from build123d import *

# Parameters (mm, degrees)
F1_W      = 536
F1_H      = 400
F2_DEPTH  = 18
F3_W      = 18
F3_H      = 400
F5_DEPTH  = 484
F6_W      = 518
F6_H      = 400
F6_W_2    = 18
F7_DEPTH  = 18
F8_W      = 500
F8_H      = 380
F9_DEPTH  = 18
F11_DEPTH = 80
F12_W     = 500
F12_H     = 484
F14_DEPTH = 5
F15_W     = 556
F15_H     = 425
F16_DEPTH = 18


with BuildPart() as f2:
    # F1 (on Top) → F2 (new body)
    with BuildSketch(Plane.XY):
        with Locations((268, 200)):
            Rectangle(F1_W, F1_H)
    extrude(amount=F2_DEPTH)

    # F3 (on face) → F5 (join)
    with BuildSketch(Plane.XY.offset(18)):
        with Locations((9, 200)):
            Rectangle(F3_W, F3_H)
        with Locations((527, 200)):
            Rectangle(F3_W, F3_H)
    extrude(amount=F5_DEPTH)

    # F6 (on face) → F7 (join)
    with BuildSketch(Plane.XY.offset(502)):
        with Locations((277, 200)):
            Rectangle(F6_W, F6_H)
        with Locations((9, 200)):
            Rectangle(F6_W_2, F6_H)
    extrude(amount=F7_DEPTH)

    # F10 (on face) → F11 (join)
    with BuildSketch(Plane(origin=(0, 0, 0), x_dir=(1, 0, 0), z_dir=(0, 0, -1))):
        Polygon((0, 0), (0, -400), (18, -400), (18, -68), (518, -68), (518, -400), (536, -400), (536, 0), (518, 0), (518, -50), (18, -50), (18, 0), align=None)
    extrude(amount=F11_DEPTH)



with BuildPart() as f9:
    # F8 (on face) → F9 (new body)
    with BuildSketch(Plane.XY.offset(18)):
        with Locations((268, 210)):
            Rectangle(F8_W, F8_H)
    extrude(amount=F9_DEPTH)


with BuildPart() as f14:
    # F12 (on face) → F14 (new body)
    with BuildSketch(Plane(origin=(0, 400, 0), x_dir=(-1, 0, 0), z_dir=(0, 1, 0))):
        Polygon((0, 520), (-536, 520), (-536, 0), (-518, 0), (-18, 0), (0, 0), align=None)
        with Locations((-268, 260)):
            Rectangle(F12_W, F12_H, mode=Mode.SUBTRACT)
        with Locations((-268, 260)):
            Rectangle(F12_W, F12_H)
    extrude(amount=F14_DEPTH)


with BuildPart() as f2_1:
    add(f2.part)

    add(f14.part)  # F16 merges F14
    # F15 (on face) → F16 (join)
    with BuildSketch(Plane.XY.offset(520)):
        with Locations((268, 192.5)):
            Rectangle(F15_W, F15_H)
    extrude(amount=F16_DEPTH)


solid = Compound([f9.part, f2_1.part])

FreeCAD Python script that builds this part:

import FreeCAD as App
import Part
import Sketcher


def add_polygon(sketch, points):
    """Adds a closed chain of lines whose ends are joined by coincident constraints."""
    first, n = sketch.GeometryCount, len(points)
    for a, b in zip(points, points[1:] + points[:1]):
        sketch.addGeometry(Part.LineSegment(App.Vector(*a, 0), App.Vector(*b, 0)), False)
    for i in range(n):
        sketch.addConstraint(Sketcher.Constraint("Coincident", first + i, 2, first + (i + 1) % n, 1))

doc = App.newDocument("Part")
body = doc.addObject("PartDesign::Body", "Body")

sketch1 = doc.addObject("Sketcher::SketchObject", "Sketch")
body.addObject(sketch1)
sketch1.AttachmentSupport = (doc.XY_Plane, [""])
sketch1.MapMode = "FlatFace"
add_polygon(sketch1, [(0, 400), (0, 0), (536, 0), (536, 400)])
sketch1.addConstraint(Sketcher.Constraint("Vertical", 0))
sketch1.addConstraint(Sketcher.Constraint("Horizontal", 1))
sketch1.addConstraint(Sketcher.Constraint("Vertical", 2))
sketch1.addConstraint(Sketcher.Constraint("Horizontal", 3))
sketch1.addConstraint(Sketcher.Constraint("Coincident", 0, 2, -1, 1))
sketch1.addConstraint(Sketcher.Constraint("DistanceX", 1, 1, 1, 2, 536.0))
sketch1.addConstraint(Sketcher.Constraint("DistanceY", 0, 2, 0, 1, 400.0))
pad1 = doc.addObject("PartDesign::Pad", "Pad")
body.addObject(pad1)
pad1.Profile = sketch1
pad1.Length = 18

sketch2 = doc.addObject("Sketcher::SketchObject", "Sketch001")
body.addObject(sketch2)
sketch2.AttachmentSupport = (doc.XY_Plane, [""])
sketch2.MapMode = "FlatFace"
sketch2.AttachmentOffset = App.Placement(App.Vector(0, 0, 18), App.Rotation())
add_polygon(sketch2, [(0, 400), (0, 0), (18, 0), (18, 400)])
add_polygon(sketch2, [(518, 400), (518, 0), (536, 0), (536, 400)])
sketch2.addConstraint(Sketcher.Constraint("Vertical", 0))
sketch2.addConstraint(Sketcher.Constraint("Horizontal", 1))
sketch2.addConstraint(Sketcher.Constraint("Vertical", 2))
sketch2.addConstraint(Sketcher.Constraint("Horizontal", 3))
sketch2.addConstraint(Sketcher.Constraint("Vertical", 4))
sketch2.addConstraint(Sketcher.Constraint("Horizontal", 5))
sketch2.addConstraint(Sketcher.Constraint("Vertical", 6))
sketch2.addConstraint(Sketcher.Constraint("Horizontal", 7))
sketch2.addConstraint(Sketcher.Constraint("Coincident", 0, 2, -1, 1))
sketch2.addConstraint(Sketcher.Constraint("PointOnObject", 4, 2, -1))
sketch2.addConstraint(Sketcher.Constraint("Horizontal", 3, 2, 6, 2))
sketch2.addConstraint(Sketcher.Constraint("Equal", 3, 5))
sketch2.addConstraint(Sketcher.Constraint("DistanceX", 1, 1, 1, 2, 18.0))
sketch2.addConstraint(Sketcher.Constraint("DistanceY", 0, 2, 0, 1, 400.0))
sketch2.addConstraint(Sketcher.Constraint("DistanceX", -1, 1, 4, 2, 518.0))
pad2 = doc.addObject("PartDesign::Pad", "Pad001")
body.addObject(pad2)
pad2.Profile = sketch2
pad2.Length = 484

sketch3 = doc.addObject("Sketcher::SketchObject", "Sketch002")
body.addObject(sketch3)
sketch3.AttachmentSupport = (doc.XY_Plane, [""])
sketch3.MapMode = "FlatFace"
sketch3.AttachmentOffset = App.Placement(App.Vector(0, 0, 502), App.Rotation())
add_polygon(sketch3, [(536, 0), (536, 400), (0, 400), (0, 0)])
sketch3.addConstraint(Sketcher.Constraint("Vertical", 0))
sketch3.addConstraint(Sketcher.Constraint("Horizontal", 1))
sketch3.addConstraint(Sketcher.Constraint("Vertical", 2))
sketch3.addConstraint(Sketcher.Constraint("Horizontal", 3))
sketch3.addConstraint(Sketcher.Constraint("Coincident", 2, 2, -1, 1))
sketch3.addConstraint(Sketcher.Constraint("DistanceX", 1, 2, 1, 1, 536.0))
sketch3.addConstraint(Sketcher.Constraint("DistanceY", 0, 1, 0, 2, 400.0))
pad3 = doc.addObject("PartDesign::Pad", "Pad002")
body.addObject(pad3)
pad3.Profile = sketch3
pad3.Length = 18

sketch4 = doc.addObject("Sketcher::SketchObject", "Sketch003")
body.addObject(sketch4)
sketch4.AttachmentSupport = (doc.XY_Plane, [""])
sketch4.MapMode = "FlatFace"
add_polygon(sketch4, [(0, 0), (0, 400), (18, 400), (18, 68), (518, 68), (518, 400), (536, 400), (536, 0), (518, 0), (518, 50), (18, 50), (18, 0)])
sketch4.addConstraint(Sketcher.Constraint("Vertical", 0))
sketch4.addConstraint(Sketcher.Constraint("Horizontal", 1))
sketch4.addConstraint(Sketcher.Constraint("Vertical", 2))
sketch4.addConstraint(Sketcher.Constraint("Horizontal", 3))
sketch4.addConstraint(Sketcher.Constraint("Vertical", 4))
sketch4.addConstraint(Sketcher.Constraint("Horizontal", 5))
sketch4.addConstraint(Sketcher.Constraint("Vertical", 6))
sketch4.addConstraint(Sketcher.Constraint("Horizontal", 7))
sketch4.addConstraint(Sketcher.Constraint("Vertical", 8))
sketch4.addConstraint(Sketcher.Constraint("Horizontal", 9))
sketch4.addConstraint(Sketcher.Constraint("Vertical", 10))
sketch4.addConstraint(Sketcher.Constraint("Horizontal", 11))
sketch4.addConstraint(Sketcher.Constraint("Coincident", 11, 2, -1, 1))
sketch4.addConstraint(Sketcher.Constraint("PointOnObject", 6, 2, -1))
sketch4.addConstraint(Sketcher.Constraint("Horizontal", 1, 2, 4, 2))
sketch4.addConstraint(Sketcher.Constraint("Vertical", 4, 2, 7, 2))
sketch4.addConstraint(Sketcher.Constraint("Vertical", 2, 2, 9, 2))
sketch4.addConstraint(Sketcher.Constraint("Equal", 1, 5))
sketch4.addConstraint(Sketcher.Constraint("DistanceX", 1, 1, 1, 2, 18.0))
sketch4.addConstraint(Sketcher.Constraint("DistanceX", 3, 1, 3, 2, 500.0))
sketch4.addConstraint(Sketcher.Constraint("DistanceY", 0, 1, 0, 2, 400.0))
sketch4.addConstraint(Sketcher.Constraint("DistanceY", 2, 2, 2, 1, 332.0))
sketch4.addConstraint(Sketcher.Constraint("DistanceY", 8, 1, 8, 2, 50.0))
pad4 = doc.addObject("PartDesign::Pad", "Pad003")
body.addObject(pad4)
pad4.Profile = sketch4
pad4.Length = 80
pad4.Reversed = True
body2 = doc.addObject("PartDesign::Body", "Body001")

sketch5 = doc.addObject("Sketcher::SketchObject", "Sketch004")
body2.addObject(sketch5)
sketch5.AttachmentSupport = (doc.getObject("XY_Plane001"), [""])
sketch5.MapMode = "FlatFace"
sketch5.AttachmentOffset = App.Placement(App.Vector(0, 0, 18), App.Rotation())
add_polygon(sketch5, [(18, 400), (18, 20), (518, 20), (518, 400)])
sketch5.addConstraint(Sketcher.Constraint("Vertical", 0))
sketch5.addConstraint(Sketcher.Constraint("Horizontal", 1))
sketch5.addConstraint(Sketcher.Constraint("Vertical", 2))
sketch5.addConstraint(Sketcher.Constraint("Horizontal", 3))
sketch5.addConstraint(Sketcher.Constraint("DistanceX", 1, 1, 1, 2, 500.0))
sketch5.addConstraint(Sketcher.Constraint("DistanceY", 0, 2, 0, 1, 380.0))
sketch5.addConstraint(Sketcher.Constraint("DistanceX", -1, 1, 0, 2, 18.0))
sketch5.addConstraint(Sketcher.Constraint("DistanceY", -1, 1, 0, 2, 20.0))
pad5 = doc.addObject("PartDesign::Pad", "Pad004")
body2.addObject(pad5)
pad5.Profile = sketch5
pad5.Length = 18
body3 = doc.addObject("PartDesign::Body", "Body002")

sketch6 = doc.addObject("Sketcher::SketchObject", "Sketch005")
body3.addObject(sketch6)
sketch6.AttachmentSupport = (doc.getObject("XZ_Plane002"), [""])
sketch6.MapMode = "FlatFace"
sketch6.AttachmentOffset = App.Placement(App.Vector(0, 0, -400), App.Rotation())
add_polygon(sketch6, [(0, 520), (536, 520), (536, 0), (0, 0)])
sketch6.addConstraint(Sketcher.Constraint("Horizontal", 0))
sketch6.addConstraint(Sketcher.Constraint("Vertical", 1))
sketch6.addConstraint(Sketcher.Constraint("Horizontal", 2))
sketch6.addConstraint(Sketcher.Constraint("Vertical", 3))
sketch6.addConstraint(Sketcher.Constraint("Coincident", 2, 2, -1, 1))
sketch6.addConstraint(Sketcher.Constraint("DistanceX", 0, 1, 0, 2, 536.0))
sketch6.addConstraint(Sketcher.Constraint("DistanceY", 1, 2, 1, 1, 520.0))
pad6 = doc.addObject("PartDesign::Pad", "Pad005")
body3.addObject(pad6)
pad6.Profile = sketch6
pad6.Length = 5
pad6.Reversed = True
doc.recompute()

boolean = doc.addObject("PartDesign::Boolean", "Boolean")
body.addObject(boolean)
boolean.Type = "Fuse"
boolean.addObjects([body3])

sketch7 = doc.addObject("Sketcher::SketchObject", "Sketch006")
body.addObject(sketch7)
sketch7.AttachmentSupport = (doc.XY_Plane, [""])
sketch7.MapMode = "FlatFace"
sketch7.AttachmentOffset = App.Placement(App.Vector(0, 0, 520), App.Rotation())
add_polygon(sketch7, [(-10, 405), (-10, -20), (546, -20), (546, 405)])
sketch7.addConstraint(Sketcher.Constraint("Vertical", 0))
sketch7.addConstraint(Sketcher.Constraint("Horizontal", 1))
sketch7.addConstraint(Sketcher.Constraint("Vertical", 2))
sketch7.addConstraint(Sketcher.Constraint("Horizontal", 3))
sketch7.addConstraint(Sketcher.Constraint("DistanceX", 1, 1, 1, 2, 556.0))
sketch7.addConstraint(Sketcher.Constraint("DistanceY", 0, 2, 0, 1, 425.0))
sketch7.addConstraint(Sketcher.Constraint("DistanceX", 0, 2, -1, 1, 10.0))
sketch7.addConstraint(Sketcher.Constraint("DistanceY", 0, 2, -1, 1, 20.0))
pad7 = doc.addObject("PartDesign::Pad", "Pad006")
body.addObject(pad7)
pad7.Profile = sketch7
pad7.Length = 18

doc.recompute()
